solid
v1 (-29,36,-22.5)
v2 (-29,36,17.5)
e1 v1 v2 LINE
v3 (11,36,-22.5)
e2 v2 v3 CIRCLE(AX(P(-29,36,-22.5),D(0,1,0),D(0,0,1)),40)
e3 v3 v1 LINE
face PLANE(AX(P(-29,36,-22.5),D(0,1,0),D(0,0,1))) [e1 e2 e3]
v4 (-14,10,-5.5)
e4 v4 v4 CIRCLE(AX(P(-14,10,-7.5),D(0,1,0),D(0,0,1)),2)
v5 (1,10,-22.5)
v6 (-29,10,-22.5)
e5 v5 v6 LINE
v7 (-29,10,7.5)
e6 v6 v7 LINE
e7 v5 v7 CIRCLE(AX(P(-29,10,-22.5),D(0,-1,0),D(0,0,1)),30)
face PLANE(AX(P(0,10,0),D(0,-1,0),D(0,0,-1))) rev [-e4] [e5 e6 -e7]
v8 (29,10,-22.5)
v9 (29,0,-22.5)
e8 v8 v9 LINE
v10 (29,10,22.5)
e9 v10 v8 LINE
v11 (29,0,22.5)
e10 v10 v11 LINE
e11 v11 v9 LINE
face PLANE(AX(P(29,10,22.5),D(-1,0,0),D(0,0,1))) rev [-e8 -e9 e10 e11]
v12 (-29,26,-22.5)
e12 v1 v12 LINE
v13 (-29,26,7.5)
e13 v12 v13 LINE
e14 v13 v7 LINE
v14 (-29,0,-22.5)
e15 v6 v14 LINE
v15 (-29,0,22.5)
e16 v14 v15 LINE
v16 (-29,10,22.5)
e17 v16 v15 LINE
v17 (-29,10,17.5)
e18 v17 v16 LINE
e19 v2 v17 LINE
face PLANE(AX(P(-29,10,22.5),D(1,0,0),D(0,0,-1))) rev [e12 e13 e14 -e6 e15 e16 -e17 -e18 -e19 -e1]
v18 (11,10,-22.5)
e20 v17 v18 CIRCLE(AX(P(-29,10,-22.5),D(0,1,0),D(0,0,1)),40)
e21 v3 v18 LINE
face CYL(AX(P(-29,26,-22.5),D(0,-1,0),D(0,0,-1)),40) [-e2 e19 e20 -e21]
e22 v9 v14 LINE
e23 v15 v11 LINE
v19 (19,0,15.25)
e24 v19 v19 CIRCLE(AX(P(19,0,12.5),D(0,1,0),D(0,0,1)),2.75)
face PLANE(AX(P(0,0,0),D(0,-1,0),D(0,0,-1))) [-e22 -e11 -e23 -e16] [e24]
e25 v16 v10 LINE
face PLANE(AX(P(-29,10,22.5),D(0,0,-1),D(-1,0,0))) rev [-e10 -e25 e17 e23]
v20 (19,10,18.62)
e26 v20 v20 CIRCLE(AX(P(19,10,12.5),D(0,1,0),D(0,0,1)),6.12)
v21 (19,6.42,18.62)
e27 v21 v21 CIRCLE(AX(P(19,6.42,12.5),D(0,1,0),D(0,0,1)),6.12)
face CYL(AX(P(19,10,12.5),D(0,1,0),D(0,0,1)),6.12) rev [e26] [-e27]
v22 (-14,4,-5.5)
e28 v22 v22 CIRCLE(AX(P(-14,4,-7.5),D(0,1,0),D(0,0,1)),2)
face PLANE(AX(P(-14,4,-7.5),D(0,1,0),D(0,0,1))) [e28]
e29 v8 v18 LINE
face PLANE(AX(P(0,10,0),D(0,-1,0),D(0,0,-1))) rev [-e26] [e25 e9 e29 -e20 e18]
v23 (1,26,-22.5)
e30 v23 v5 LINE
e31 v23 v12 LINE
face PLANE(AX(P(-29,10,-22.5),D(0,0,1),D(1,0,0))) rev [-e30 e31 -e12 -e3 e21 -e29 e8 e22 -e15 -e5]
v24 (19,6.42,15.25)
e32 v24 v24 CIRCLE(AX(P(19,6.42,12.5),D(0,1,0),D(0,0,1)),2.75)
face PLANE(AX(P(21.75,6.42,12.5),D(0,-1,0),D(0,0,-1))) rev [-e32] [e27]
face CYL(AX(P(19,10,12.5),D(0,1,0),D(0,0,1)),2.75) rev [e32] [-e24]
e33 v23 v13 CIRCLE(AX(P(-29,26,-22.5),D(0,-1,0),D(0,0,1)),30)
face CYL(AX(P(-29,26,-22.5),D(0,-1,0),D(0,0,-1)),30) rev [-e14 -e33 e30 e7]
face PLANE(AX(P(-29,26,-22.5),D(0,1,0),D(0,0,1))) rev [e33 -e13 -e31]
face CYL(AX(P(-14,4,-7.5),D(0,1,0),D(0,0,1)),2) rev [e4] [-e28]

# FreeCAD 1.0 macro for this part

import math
import FreeCAD as App
import Part
import Sketcher
Q = App.Units.Quantity

doc = App.newDocument("Part")
params = doc.addObject("Spreadsheet::Sheet", "Params")
for row, (alias, value) in enumerate([
    ("sketch1_width", "58 mm"),
    ("sketch1_height", "45 mm"),
    ("pad1_length", "10 mm"),
    ("sketch2_diameter", "5.5 mm"),
    ("hole_diameter", "5.5 mm"),
    ("hole_cbore_diameter", "12.24 mm"),
    ("hole_cbore_depth", "3.58 mm"),
    ("sketch3_radius", "30 mm"),
    ("sketch3_radius2", "40 mm"),
    ("pad2_length", "16 mm"),
    ("sketch4_radius", "40 mm"),
    ("pad3_length", "10 mm"),
    ("sketch5_diameter", "4 mm"),
    ("pocket1_length", "6 mm"),
], start=1):
    params.set(f"A{row}", alias)
    params.set(f"B{row}", "=" + value)
    params.setAlias(f"B{row}", alias)

body = doc.addObject("PartDesign::Body", "Body")

sketch1 = doc.addObject("Sketcher::SketchObject", "Sketch")
body.addObject(sketch1)
sketch1.AttachmentSupport = (doc.XZ_Plane, [""])
sketch1.MapMode = "FlatFace"
sketch1.addGeometry([
    Part.LineSegment(App.Vector(-29, -22, 0), App.Vector(-29, 22, 0)),
    Part.LineSegment(App.Vector(-29, 22, 0), App.Vector(29, 22, 0)),
    Part.LineSegment(App.Vector(29, 22, 0), App.Vector(29, -22, 0)),
    Part.LineSegment(App.Vector(29, -22, 0), App.Vector(-29, -22, 0)),
], False)
sketch1.addConstraint([
    Sketcher.Constraint("Coincident", 0, 2, 1, 1),
    Sketcher.Constraint("Coincident", 1, 2, 2, 1),
    Sketcher.Constraint("Coincident", 2, 2, 3, 1),
    Sketcher.Constraint("Coincident", 3, 2, 0, 1),
    Sketcher.Constraint("Vertical", 0),
    Sketcher.Constraint("Horizontal", 1),
    Sketcher.Constraint("Vertical", 2),
    Sketcher.Constraint("Horizontal", 3),
    Sketcher.Constraint("Symmetric", 0, 2, 2, 2, -1, 1),
    Sketcher.Constraint("DistanceX", 1, 1, 1, 2, Q("58 mm")),
    Sketcher.Constraint("DistanceY", 0, 1, 0, 2, Q("45 mm")),
])
sketch1.setExpression("Constraints[9]", "Params.sketch1_width")
sketch1.setExpression("Constraints[10]", "Params.sketch1_height")
pad1 = doc.addObject("PartDesign::Pad", "Pad")
body.addObject(pad1)
pad1.Profile = sketch1
pad1.setExpression("Length", "Params.pad1_length")
pad1.Reversed = True

sketch2 = doc.addObject("Sketcher::SketchObject", "Sketch001")
body.addObject(sketch2)
sketch2.AttachmentSupport = (doc.XZ_Plane, [""])
sketch2.MapMode = "FlatFace"
sketch2.AttachmentOffset = App.Placement(App.Vector(0, 0, -10), App.Rotation())
sketch2.addGeometry(Part.Circle(App.Vector(19, 12.5, 0), App.Vector(0, 0, 1), 2.8), False)
sketch2.addConstraint([
    Sketcher.Constraint("Diameter", 0, Q("5.5 mm")),
    Sketcher.Constraint("DistanceX", -1, 1, 0, 3, Q("19 mm")),
    Sketcher.Constraint("DistanceY", -1, 1, 0, 3, Q("12.5 mm")),
])
sketch2.setExpression("Constraints[0]", "Params.sketch2_diameter")
doc.recompute()
hole = doc.addObject("PartDesign::Hole", "Hole")
body.addObject(hole)
hole.Profile = sketch2
hole.ThreadType = "None"
hole.setExpression("Diameter", "Params.hole_diameter")
hole.DepthType = "ThroughAll"
hole.HoleCutType = "Counterbore"
hole.setExpression("HoleCutDiameter", "Params.hole_cbore_diameter")
hole.setExpression("HoleCutDepth", "Params.hole_cbore_depth")
hole.Reversed = True

sketch3 = doc.addObject("Sketcher::SketchObject", "Sketch002")
body.addObject(sketch3)
sketch3.AttachmentSupport = (doc.XZ_Plane, [""])
sketch3.MapMode = "FlatFace"
sketch3.AttachmentOffset = App.Placement(App.Vector(0, 0, -10), App.Rotation())
sketch3.addGeometry([
    Part.LineSegment(App.Vector(11, -22, 0), App.Vector(1, -22, 0)),
    Part.ArcOfCircle(Part.Circle(App.Vector(-29, -22, 0), App.Vector(0, 0, 1), 30), math.radians(0), math.radians(90)),
    Part.LineSegment(App.Vector(-29, 8, 0), App.Vector(-29, 18, 0)),
    Part.ArcOfCircle(Part.Circle(App.Vector(-29, -23, 0), App.Vector(0, 0, 1), 40), math.radians(0), math.radians(90)),
], False)
sketch3.addConstraint([
    Sketcher.Constraint("Coincident", 0, 2, 1, 1),
    Sketcher.Constraint("Coincident", 1, 2, 2, 1),
    Sketcher.Constraint("Coincident", 2, 2, 3, 2),
    Sketcher.Constraint("Coincident", 3, 1, 0, 1),
    Sketcher.Constraint("Horizontal", 0),
    Sketcher.Constraint("Vertical", 2),
    Sketcher.Constraint("Coincident", 3, 3, 1, 3),
    Sketcher.Constraint("Horizontal", 3, 3, 0, 2),
    Sketcher.Constraint("Vertical", 3, 3, 1, 2),
    Sketcher.Constraint("Radius", 1, Q("30 mm")),
    Sketcher.Constraint("Radius", 3, Q("40 mm")),
    Sketcher.Constraint("DistanceX", 1, 3, -1, 1, Q("29 mm")),
    Sketcher.Constraint("DistanceY", 1, 3, -1, 1, Q("22.5 mm")),
])
sketch3.setExpression("Constraints[9]", "Params.sketch3_radius")
sketch3.setExpression("Constraints[10]", "Params.sketch3_radius2")
pad2 = doc.addObject("PartDesign::Pad", "Pad001")
body.addObject(pad2)
pad2.Profile = sketch3
pad2.setExpression("Length", "Params.pad2_length")
pad2.Reversed = True

sketch4 = doc.addObject("Sketcher::SketchObject", "Sketch003")
body.addObject(sketch4)
sketch4.AttachmentSupport = (doc.XZ_Plane, [""])
sketch4.MapMode = "FlatFace"
sketch4.AttachmentOffset = App.Placement(App.Vector(0, 0, -26), App.Rotation())
sketch4.addGeometry([
    Part.LineSegment(App.Vector(11, -22, 0), App.Vector(-29, -22, 0)),
    Part.LineSegment(App.Vector(-29, -22, 0), App.Vector(-29, 18, 0)),
    Part.ArcOfCircle(Part.Circle(App.Vector(-29, -23, 0), App.Vector(0, 0, 1), 40), math.radians(0), math.radians(90)),
], False)
sketch4.addConstraint([
    Sketcher.Constraint("Coincident", 0, 2, 1, 1),
    Sketcher.Constraint("Coincident", 1, 2, 2, 2),
    Sketcher.Constraint("Coincident", 2, 1, 0, 1),
    Sketcher.Constraint("Horizontal", 0),
    Sketcher.Constraint("Vertical", 1),
    Sketcher.Constraint("Coincident", 0, 2, 2, 3),
    Sketcher.Constraint("Radius", 2, Q("40 mm")),
    Sketcher.Constraint("DistanceX", 2, 3, -1, 1, Q("29 mm")),
    Sketcher.Constraint("DistanceY", 2, 3, -1, 1, Q("22.5 mm")),
])
sketch4.setExpression("Constraints[6]", "Params.sketch4_radius")
pad3 = doc.addObject("PartDesign::Pad", "Pad002")
body.addObject(pad3)
pad3.Profile = sketch4
pad3.setExpression("Length", "Params.pad3_length")
pad3.Reversed = True

sketch5 = doc.addObject("Sketcher::SketchObject", "Sketch004")
body.addObject(sketch5)
sketch5.AttachmentSupport = (doc.XZ_Plane, [""])
sketch5.MapMode = "FlatFace"
sketch5.AttachmentOffset = App.Placement(App.Vector(0, 0, -10), App.Rotation())
sketch5.addGeometry(Part.Circle(App.Vector(-14, -7.5, 0), App.Vector(0, 0, 1), 2), False)
sketch5.addConstraint([
    Sketcher.Constraint("Diameter", 0, Q("4 mm")),
    Sketcher.Constraint("DistanceX", 0, 3, -1, 1, Q("14 mm")),
    Sketcher.Constraint("DistanceY", 0, 3, -1, 1, Q("7.5 mm")),
])
sketch5.setExpression("Constraints[0]", "Params.sketch5_diameter")
pocket1 = doc.addObject("PartDesign::Pocket", "Pocket")
body.addObject(pocket1)
pocket1.Profile = sketch5
pocket1.setExpression("Length", "Params.pocket1_length")
pocket1.Reversed = True

doc.recompute()
